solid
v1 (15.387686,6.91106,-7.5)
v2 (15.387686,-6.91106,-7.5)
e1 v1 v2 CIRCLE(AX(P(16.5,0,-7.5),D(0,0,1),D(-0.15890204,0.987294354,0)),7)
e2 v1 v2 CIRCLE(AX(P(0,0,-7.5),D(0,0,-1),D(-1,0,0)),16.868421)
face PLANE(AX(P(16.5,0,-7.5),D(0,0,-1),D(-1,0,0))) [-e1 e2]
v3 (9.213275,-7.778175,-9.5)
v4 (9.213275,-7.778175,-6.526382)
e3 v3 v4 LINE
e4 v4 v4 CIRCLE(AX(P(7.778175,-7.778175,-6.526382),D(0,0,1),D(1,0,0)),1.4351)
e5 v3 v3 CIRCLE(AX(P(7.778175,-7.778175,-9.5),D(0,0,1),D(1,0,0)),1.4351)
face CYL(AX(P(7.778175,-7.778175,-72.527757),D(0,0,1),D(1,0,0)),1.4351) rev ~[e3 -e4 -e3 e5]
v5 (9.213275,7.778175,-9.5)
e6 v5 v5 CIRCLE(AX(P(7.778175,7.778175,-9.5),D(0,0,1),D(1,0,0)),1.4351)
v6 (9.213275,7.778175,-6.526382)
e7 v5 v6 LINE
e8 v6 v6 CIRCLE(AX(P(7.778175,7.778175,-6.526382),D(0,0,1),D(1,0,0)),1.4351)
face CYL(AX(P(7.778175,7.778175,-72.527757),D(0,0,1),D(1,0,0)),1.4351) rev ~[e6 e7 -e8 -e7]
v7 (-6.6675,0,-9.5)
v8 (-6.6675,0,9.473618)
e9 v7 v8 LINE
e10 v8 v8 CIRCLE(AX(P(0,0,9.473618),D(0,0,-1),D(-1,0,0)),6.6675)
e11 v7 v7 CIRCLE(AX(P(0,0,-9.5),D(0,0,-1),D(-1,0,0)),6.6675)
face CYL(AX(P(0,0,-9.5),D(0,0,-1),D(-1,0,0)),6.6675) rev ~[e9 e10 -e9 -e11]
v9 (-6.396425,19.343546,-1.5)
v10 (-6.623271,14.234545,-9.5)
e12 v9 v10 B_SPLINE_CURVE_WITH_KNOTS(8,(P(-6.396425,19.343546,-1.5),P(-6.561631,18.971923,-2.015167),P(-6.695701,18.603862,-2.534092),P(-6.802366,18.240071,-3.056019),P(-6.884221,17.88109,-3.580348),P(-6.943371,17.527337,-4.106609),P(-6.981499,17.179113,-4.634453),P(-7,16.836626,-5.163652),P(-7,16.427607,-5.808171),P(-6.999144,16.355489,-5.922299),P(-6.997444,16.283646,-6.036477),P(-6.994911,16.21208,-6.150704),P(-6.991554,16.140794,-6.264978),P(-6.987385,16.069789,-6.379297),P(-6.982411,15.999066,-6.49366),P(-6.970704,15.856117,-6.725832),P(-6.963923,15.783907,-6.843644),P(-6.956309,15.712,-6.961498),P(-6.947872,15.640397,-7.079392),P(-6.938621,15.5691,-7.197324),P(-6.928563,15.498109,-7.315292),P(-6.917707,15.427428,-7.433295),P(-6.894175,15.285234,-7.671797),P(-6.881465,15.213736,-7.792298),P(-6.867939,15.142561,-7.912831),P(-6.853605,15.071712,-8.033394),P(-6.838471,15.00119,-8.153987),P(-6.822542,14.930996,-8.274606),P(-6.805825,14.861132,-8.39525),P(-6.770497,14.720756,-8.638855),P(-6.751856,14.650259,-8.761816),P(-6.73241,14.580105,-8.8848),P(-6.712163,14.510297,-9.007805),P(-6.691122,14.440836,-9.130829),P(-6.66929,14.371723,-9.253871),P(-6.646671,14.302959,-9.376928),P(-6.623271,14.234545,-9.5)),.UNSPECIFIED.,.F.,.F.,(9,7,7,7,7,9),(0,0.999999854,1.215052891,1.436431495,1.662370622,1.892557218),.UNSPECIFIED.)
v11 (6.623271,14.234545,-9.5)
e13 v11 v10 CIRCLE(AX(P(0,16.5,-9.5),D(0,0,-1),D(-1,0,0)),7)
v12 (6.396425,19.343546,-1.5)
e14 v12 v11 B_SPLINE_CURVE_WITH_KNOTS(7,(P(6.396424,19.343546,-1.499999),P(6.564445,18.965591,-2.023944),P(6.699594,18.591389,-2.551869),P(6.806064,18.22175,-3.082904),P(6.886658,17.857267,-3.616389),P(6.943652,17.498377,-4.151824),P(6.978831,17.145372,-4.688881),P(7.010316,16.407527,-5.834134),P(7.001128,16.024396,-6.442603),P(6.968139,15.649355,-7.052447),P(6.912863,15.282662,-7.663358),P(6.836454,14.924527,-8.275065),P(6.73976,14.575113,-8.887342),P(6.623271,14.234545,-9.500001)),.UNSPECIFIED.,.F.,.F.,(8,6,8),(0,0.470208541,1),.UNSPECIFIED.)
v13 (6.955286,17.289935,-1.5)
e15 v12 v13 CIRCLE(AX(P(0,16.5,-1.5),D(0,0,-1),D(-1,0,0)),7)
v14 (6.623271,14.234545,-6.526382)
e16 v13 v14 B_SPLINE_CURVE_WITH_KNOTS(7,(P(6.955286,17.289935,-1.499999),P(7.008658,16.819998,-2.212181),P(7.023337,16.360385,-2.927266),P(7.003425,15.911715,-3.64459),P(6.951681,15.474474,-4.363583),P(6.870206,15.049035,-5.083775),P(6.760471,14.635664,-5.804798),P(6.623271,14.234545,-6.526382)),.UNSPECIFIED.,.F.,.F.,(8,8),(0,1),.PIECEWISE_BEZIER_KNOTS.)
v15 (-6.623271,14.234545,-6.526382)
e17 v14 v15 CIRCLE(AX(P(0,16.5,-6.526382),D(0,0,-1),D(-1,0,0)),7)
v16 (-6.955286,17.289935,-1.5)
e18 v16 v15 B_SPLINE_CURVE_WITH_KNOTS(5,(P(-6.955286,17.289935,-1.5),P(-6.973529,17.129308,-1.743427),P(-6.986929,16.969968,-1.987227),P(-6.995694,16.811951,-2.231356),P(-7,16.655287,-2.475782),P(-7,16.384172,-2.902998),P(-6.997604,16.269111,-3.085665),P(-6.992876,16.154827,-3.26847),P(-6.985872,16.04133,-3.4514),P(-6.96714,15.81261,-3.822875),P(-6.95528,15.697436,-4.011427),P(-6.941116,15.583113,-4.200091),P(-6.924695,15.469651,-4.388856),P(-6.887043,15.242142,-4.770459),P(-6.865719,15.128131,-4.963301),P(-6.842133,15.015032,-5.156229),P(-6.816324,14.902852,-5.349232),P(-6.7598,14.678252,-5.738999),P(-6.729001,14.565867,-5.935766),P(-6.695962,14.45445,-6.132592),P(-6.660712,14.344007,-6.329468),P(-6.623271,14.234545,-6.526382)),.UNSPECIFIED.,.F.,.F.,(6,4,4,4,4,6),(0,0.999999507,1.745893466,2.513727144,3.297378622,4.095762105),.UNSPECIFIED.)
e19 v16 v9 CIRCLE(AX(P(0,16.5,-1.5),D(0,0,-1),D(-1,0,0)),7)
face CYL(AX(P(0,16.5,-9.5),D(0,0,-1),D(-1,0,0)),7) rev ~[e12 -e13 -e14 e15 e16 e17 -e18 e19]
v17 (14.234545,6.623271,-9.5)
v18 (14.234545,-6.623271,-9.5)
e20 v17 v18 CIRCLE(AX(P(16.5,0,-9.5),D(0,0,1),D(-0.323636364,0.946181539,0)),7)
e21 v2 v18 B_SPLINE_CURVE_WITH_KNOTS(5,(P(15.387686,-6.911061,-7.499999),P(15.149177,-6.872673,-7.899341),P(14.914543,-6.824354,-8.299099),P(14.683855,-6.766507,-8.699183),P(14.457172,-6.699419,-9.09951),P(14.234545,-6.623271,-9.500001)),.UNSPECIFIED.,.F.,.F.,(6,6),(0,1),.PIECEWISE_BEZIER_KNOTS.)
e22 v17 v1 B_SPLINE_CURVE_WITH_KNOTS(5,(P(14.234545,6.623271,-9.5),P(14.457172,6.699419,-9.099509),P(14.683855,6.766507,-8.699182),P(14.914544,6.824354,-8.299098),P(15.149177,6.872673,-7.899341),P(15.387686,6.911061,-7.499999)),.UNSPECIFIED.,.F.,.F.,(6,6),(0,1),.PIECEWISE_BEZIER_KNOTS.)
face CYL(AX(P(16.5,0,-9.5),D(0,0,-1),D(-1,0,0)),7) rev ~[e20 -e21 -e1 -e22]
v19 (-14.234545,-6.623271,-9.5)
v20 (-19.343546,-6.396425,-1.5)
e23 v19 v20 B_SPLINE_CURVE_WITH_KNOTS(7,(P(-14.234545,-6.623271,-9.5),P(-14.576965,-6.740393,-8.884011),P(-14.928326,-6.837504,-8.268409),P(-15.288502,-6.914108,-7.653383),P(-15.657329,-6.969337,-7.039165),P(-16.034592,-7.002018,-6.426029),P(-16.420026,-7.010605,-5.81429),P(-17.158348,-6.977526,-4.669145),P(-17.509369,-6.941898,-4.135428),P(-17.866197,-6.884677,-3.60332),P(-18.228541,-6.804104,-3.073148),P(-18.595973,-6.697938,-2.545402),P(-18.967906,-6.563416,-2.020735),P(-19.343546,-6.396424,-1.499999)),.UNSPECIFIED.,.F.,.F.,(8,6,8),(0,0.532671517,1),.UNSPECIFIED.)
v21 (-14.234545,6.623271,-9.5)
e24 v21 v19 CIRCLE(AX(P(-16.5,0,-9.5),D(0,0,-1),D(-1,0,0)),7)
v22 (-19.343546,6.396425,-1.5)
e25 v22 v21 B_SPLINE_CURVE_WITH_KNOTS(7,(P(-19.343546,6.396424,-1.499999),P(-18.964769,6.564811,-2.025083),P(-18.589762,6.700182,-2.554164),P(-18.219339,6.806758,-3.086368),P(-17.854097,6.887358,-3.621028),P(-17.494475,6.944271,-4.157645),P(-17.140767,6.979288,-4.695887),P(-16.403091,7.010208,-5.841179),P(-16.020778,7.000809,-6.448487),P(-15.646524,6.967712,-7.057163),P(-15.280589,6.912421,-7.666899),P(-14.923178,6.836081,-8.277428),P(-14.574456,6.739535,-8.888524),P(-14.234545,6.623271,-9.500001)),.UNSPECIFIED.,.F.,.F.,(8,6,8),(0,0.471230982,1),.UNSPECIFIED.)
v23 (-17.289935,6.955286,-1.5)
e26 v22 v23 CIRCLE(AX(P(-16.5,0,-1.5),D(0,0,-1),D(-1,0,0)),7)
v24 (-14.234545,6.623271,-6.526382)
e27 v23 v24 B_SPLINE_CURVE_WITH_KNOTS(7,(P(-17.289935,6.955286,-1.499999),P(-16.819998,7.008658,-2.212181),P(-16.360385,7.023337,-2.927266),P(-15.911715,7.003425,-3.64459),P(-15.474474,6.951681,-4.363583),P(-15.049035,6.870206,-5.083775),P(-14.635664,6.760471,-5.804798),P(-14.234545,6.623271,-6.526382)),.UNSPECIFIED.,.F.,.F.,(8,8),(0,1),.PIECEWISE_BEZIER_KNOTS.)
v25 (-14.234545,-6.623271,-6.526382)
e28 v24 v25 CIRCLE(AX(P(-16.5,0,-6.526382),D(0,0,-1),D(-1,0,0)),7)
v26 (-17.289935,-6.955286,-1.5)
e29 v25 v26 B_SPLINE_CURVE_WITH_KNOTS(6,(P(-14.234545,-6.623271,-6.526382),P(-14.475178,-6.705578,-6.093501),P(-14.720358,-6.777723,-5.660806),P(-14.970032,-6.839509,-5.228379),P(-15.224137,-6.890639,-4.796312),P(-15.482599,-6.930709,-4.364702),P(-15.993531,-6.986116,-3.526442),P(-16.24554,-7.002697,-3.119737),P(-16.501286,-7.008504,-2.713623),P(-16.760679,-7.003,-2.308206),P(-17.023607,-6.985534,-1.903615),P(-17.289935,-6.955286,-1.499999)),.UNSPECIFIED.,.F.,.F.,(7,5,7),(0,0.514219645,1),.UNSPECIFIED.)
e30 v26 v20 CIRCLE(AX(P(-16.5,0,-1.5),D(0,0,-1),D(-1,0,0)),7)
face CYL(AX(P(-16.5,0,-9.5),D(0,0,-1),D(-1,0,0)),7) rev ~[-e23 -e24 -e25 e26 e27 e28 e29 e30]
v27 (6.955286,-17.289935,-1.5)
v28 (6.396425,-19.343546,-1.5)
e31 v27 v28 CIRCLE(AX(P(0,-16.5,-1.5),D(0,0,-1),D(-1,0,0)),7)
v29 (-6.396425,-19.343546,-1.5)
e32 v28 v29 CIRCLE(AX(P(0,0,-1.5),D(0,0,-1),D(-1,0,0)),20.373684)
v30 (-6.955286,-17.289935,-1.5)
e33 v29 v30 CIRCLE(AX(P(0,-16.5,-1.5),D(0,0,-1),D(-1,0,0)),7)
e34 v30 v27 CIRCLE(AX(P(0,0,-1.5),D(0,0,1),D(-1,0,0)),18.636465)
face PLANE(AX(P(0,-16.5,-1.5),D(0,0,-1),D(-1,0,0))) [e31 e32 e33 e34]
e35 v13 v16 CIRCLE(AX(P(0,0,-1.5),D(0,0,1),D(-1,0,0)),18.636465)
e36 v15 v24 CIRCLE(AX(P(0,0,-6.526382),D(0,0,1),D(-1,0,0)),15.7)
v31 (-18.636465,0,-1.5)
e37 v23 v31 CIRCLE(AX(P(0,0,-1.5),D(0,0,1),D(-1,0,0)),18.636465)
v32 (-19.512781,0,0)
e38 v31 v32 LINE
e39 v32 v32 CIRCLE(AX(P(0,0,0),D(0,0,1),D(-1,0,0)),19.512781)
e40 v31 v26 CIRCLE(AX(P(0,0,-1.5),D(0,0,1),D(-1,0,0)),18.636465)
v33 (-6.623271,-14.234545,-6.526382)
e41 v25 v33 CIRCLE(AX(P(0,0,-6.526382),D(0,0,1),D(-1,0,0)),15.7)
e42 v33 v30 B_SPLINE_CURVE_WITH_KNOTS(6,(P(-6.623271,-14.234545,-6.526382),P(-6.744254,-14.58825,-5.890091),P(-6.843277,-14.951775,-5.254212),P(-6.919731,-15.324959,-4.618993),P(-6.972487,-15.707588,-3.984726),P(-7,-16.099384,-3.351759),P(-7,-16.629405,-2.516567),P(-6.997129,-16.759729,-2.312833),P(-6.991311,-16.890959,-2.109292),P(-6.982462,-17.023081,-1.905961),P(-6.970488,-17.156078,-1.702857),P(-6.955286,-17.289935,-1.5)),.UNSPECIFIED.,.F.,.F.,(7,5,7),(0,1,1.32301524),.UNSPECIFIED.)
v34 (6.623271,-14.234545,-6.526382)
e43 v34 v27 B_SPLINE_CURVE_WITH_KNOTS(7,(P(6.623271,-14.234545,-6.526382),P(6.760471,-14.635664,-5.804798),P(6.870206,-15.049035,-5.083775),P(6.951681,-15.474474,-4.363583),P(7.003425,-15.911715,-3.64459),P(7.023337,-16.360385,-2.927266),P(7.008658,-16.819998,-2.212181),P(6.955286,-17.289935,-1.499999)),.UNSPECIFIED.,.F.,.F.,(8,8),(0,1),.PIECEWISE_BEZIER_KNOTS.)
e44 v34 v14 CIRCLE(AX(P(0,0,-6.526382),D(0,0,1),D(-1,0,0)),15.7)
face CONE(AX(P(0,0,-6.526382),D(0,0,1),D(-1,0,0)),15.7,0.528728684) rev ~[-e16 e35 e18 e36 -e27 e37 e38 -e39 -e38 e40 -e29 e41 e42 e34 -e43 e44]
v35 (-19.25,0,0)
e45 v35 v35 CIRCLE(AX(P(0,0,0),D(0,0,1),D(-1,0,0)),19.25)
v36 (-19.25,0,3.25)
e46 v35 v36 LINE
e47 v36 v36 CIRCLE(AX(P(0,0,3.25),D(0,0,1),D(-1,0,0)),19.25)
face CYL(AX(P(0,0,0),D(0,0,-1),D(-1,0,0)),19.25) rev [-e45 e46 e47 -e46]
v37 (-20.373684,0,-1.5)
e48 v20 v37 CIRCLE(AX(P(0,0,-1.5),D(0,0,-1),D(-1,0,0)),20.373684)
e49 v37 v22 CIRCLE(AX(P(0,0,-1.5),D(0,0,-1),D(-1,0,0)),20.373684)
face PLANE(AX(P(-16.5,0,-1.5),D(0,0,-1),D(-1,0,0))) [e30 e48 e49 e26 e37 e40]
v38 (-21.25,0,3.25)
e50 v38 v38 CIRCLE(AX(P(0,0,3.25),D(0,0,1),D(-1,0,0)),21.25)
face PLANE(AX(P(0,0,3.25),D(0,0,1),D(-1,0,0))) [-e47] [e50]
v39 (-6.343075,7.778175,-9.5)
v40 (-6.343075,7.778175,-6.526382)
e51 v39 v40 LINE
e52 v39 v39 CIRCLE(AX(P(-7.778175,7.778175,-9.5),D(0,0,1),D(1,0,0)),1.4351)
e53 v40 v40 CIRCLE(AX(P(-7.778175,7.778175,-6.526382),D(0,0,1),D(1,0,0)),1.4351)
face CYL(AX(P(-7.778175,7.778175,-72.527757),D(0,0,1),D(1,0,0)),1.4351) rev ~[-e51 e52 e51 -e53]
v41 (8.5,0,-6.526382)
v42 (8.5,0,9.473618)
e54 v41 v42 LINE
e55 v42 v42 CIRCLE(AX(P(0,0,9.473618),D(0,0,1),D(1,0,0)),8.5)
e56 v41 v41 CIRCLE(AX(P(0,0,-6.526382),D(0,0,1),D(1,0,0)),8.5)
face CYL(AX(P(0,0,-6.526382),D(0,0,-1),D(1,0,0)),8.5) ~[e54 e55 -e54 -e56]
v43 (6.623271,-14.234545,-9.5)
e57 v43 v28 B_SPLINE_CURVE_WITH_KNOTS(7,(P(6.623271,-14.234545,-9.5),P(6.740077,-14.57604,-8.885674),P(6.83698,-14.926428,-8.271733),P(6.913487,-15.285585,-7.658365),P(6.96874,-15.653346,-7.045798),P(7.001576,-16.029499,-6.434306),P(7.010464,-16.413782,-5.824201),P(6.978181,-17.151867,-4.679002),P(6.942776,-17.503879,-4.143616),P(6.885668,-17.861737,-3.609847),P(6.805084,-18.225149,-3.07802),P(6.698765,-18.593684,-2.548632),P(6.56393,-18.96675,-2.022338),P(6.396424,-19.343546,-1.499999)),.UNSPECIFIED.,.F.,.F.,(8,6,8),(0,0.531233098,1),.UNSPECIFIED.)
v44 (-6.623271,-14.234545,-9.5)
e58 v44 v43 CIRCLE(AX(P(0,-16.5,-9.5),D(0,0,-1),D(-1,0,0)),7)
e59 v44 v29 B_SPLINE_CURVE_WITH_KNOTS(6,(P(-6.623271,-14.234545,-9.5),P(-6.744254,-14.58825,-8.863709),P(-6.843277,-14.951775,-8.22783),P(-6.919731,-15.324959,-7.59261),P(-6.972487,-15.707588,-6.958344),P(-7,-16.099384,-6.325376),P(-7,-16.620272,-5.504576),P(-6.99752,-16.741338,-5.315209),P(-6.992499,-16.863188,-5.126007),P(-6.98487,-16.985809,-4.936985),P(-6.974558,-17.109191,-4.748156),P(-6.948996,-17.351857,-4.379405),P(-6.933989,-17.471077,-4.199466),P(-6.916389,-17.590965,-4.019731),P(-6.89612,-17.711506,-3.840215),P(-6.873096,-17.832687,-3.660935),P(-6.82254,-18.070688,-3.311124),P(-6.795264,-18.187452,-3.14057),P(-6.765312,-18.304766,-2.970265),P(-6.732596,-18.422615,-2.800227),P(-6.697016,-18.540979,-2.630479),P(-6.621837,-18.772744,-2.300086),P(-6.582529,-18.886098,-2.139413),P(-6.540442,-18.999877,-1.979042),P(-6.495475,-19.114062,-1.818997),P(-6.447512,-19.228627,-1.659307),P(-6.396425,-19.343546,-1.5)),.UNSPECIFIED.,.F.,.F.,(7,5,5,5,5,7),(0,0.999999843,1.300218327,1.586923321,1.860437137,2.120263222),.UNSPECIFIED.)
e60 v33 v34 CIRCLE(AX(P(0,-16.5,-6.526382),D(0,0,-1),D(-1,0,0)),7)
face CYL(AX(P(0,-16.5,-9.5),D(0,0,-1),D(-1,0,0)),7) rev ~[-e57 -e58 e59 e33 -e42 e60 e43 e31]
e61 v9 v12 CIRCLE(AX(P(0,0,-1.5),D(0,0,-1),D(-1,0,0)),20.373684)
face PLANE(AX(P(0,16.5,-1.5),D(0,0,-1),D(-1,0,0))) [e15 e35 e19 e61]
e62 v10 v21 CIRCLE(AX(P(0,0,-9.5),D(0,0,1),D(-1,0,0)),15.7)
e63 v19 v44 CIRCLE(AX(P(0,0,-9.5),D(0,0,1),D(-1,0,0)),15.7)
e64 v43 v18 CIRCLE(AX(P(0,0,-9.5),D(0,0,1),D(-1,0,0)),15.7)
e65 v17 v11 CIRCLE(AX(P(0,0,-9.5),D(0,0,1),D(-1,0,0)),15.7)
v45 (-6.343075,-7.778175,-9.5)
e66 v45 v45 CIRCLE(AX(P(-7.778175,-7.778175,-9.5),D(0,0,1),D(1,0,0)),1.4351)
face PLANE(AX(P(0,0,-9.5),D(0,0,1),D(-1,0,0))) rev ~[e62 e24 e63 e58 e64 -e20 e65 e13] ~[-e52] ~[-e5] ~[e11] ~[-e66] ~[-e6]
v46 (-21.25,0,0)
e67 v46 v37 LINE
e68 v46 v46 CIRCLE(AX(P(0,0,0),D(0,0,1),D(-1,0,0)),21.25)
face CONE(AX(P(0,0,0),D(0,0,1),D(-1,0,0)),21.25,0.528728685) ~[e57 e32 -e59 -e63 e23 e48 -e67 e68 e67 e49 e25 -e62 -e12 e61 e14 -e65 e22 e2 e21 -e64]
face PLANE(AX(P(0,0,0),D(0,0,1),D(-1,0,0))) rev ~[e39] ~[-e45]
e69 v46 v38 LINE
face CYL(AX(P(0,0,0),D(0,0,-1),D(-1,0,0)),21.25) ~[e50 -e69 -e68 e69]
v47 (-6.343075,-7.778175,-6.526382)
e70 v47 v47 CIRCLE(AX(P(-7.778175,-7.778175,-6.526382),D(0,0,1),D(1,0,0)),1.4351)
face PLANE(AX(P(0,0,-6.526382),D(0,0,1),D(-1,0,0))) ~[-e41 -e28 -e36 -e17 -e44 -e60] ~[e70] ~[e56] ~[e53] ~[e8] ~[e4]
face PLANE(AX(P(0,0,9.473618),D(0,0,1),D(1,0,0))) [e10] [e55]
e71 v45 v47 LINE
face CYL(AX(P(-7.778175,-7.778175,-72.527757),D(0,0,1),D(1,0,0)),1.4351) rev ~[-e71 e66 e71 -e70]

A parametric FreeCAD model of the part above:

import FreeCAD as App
import Part
import Sketcher

doc = App.newDocument("Part")
body = doc.addObject("PartDesign::Body", "Body")

sketch1 = doc.addObject("Sketcher::SketchObject", "Sketch")
body.addObject(sketch1)
sketch1.AttachmentSupport = (doc.XY_Plane, [""])
sketch1.MapMode = "FlatFace"
sketch1.addGeometry(Part.Circle(App.Vector(0, 0, 0), App.Vector(0, 0, 1), 21), False)
sketch1.addGeometry(Part.Circle(App.Vector(0, 0, 0), App.Vector(0, 0, 1), 19), False)
sketch1.addConstraint(Sketcher.Constraint("Coincident", 0, 3, -1, 1))
sketch1.addConstraint(Sketcher.Constraint("Coincident", 1, 3, -1, 1))
sketch1.addConstraint(Sketcher.Constraint("Diameter", 0, 42.5))
sketch1.addConstraint(Sketcher.Constraint("Diameter", 1, 38.5))
pad1 = doc.addObject("PartDesign::Pad", "Pad")
body.addObject(pad1)
pad1.Profile = sketch1
pad1.Length = 3.25

sketch2 = doc.addObject("Sketcher::SketchObject", "Sketch001")
body.addObject(sketch2)
sketch2.AttachmentSupport = (doc.XZ_Plane, [""])
sketch2.MapMode = "FlatFace"
sketch2.addGeometry(Part.LineSegment(App.Vector(-15.7, -9.5, 0), App.Vector(-21.2, 0, 0)), False)
sketch2.addGeometry(Part.LineSegment(App.Vector(-21.2, 0, 0), App.Vector(-19.5, 0, 0)), False)
sketch2.addGeometry(Part.LineSegment(App.Vector(-19.5, 0, 0), App.Vector(-15.7, -6.5, 0)), False)
sketch2.addGeometry(Part.LineSegment(App.Vector(-15.7, -6.5, 0), App.Vector(0, -6.5, 0)), False)
sketch2.addGeometry(Part.LineSegment(App.Vector(0, -6.5, 0), App.Vector(0, -9.5, 0)), False)
sketch2.addGeometry(Part.LineSegment(App.Vector(0, -9.5, 0), App.Vector(-15.7, -9.5, 0)), False)
sketch2.addConstraint(Sketcher.Constraint("Coincident", 0, 2, 1, 1))
sketch2.addConstraint(Sketcher.Constraint("Coincident", 1, 2, 2, 1))
sketch2.addConstraint(Sketcher.Constraint("Coincident", 2, 2, 3, 1))
sketch2.addConstraint(Sketcher.Constraint("Coincident", 3, 2, 4, 1))
sketch2.addConstraint(Sketcher.Constraint("Coincident", 4, 2, 5, 1))
sketch2.addConstraint(Sketcher.Constraint("Coincident", 5, 2, 0, 1))
sketch2.addConstraint(Sketcher.Constraint("Horizontal", 1))
sketch2.addConstraint(Sketcher.Constraint("Horizontal", 3))
sketch2.addConstraint(Sketcher.Constraint("Vertical", 4))
sketch2.addConstraint(Sketcher.Constraint("Horizontal", 5))
sketch2.addConstraint(Sketcher.Constraint("PointOnObject", 0, 2, -1))
sketch2.addConstraint(Sketcher.Constraint("PointOnObject", 3, 2, -2))
sketch2.addConstraint(Sketcher.Constraint("Parallel", 0, 2))
sketch2.addConstraint(Sketcher.Constraint("Vertical", 2, 2, 5, 2))
sketch2.addConstraint(Sketcher.Constraint("DistanceX", 3, 1, 3, 2, 15.7))
sketch2.addConstraint(Sketcher.Constraint("DistanceY", 4, 2, -1, 1, 9.5))
sketch2.addConstraint(Sketcher.Constraint("DistanceX", 0, 2, -1, 1, 21.25))
sketch2.addConstraint(Sketcher.Constraint("DistanceX", 1, 1, 1, 2, 1.737219))
revolution = doc.addObject("PartDesign::Revolution", "Revolution")
body.addObject(revolution)
revolution.Profile = sketch2
revolution.ReferenceAxis = (sketch2, ["V_Axis"])
revolution.Angle = 360

sketch3 = doc.addObject("Sketcher::SketchObject", "Sketch002")
body.addObject(sketch3)
sketch3.AttachmentSupport = (doc.XY_Plane, [""])
sketch3.MapMode = "FlatFace"
sketch3.AttachmentOffset = App.Placement(App.Vector(0, 0, -9.5), App.Rotation())
sketch3.addGeometry(Part.Circle(App.Vector(0, 16, 0), App.Vector(0, 0, 1), 7), False)
sketch3.addGeometry(Part.Circle(App.Vector(-16, 0, 0), App.Vector(0, 0, 1), 7), False)
sketch3.addGeometry(Part.Circle(App.Vector(0, -16, 0), App.Vector(0, 0, 1), 7), False)
sketch3.addConstraint(Sketcher.Constraint("Equal", 0, 1))
sketch3.addConstraint(Sketcher.Constraint("Equal", 1, 2))
sketch3.addConstraint(Sketcher.Constraint("Symmetric", 0, 3, 2, 3, -1, 1))
sketch3.addConstraint(Sketcher.Constraint("PointOnObject", 0, 3, -2))
sketch3.addConstraint(Sketcher.Constraint("PointOnObject", 1, 3, -1))
sketch3.addConstraint(Sketcher.Constraint("Diameter", 0, 14.0))
sketch3.addConstraint(Sketcher.Constraint("DistanceY", 2, 3, 0, 3, 33.0))
sketch3.addConstraint(Sketcher.Constraint("DistanceX", 1, 3, -1, 1, 16.5))
pocket1 = doc.addObject("PartDesign::Pocket", "Pocket")
body.addObject(pocket1)
pocket1.Profile = sketch3
pocket1.Length = 8
pocket1.Reversed = True

sketch4 = doc.addObject("Sketcher::SketchObject", "Sketch003")
body.addObject(sketch4)
sketch4.AttachmentSupport = (doc.XY_Plane, [""])
sketch4.MapMode = "FlatFace"
sketch4.AttachmentOffset = App.Placement(App.Vector(0, 0, -9.5), App.Rotation())
sketch4.addGeometry(Part.Circle(App.Vector(16, 0, 0), App.Vector(0, 0, 1), 7), False)
sketch4.addConstraint(Sketcher.Constraint("PointOnObject", 0, 3, -1))
sketch4.addConstraint(Sketcher.Constraint("Diameter", 0, 14.0))
sketch4.addConstraint(Sketcher.Constraint("DistanceX", -1, 1, 0, 3, 16.5))
pocket2 = doc.addObject("PartDesign::Pocket", "Pocket001")
body.addObject(pocket2)
pocket2.Profile = sketch4
pocket2.Length = 2
pocket2.Reversed = True

sketch5 = doc.addObject("Sketcher::SketchObject", "Sketch004")
body.addObject(sketch5)
sketch5.AttachmentSupport = (doc.XY_Plane, [""])
sketch5.MapMode = "FlatFace"
sketch5.AttachmentOffset = App.Placement(App.Vector(0, 0, -6.526382), App.Rotation())
sketch5.addGeometry(Part.Circle(App.Vector(0, 0, 0), App.Vector(0, 0, 1), 8), False)
sketch5.addConstraint(Sketcher.Constraint("Coincident", 0, 3, -1, 1))
sketch5.addConstraint(Sketcher.Constraint("Diameter", 0, 17.0))
pad2 = doc.addObject("PartDesign::Pad", "Pad001")
body.addObject(pad2)
pad2.Profile = sketch5
pad2.Length = 16

sketch6 = doc.addObject("Sketcher::SketchObject", "Sketch005")
body.addObject(sketch6)
sketch6.AttachmentSupport = (doc.XY_Plane, [""])
sketch6.MapMode = "FlatFace"
sketch6.AttachmentOffset = App.Placement(App.Vector(0, 0, -9.5), App.Rotation())
sketch6.addGeometry(Part.Circle(App.Vector(0, 0, 0), App.Vector(0, 0, 1), 7), False)
sketch6.addConstraint(Sketcher.Constraint("Coincident", 0, 3, -1, 1))
sketch6.addConstraint(Sketcher.Constraint("Diameter", 0, 13.335))
pocket3 = doc.addObject("PartDesign::Pocket", "Pocket002")
body.addObject(pocket3)
pocket3.Profile = sketch6
pocket3.Type = "ThroughAll"
pocket3.Reversed = True

sketch7 = doc.addObject("Sketcher::SketchObject", "Sketch006")
body.addObject(sketch7)
sketch7.AttachmentSupport = (doc.XY_Plane, [""])
sketch7.MapMode = "FlatFace"
sketch7.AttachmentOffset = App.Placement(App.Vector(0, 0, -9.5), App.Rotation())
sketch7.addGeometry(Part.Circle(App.Vector(-7.8, 7.8, 0), App.Vector(0, 0, 1), 1.4), False)
sketch7.addGeometry(Part.Circle(App.Vector(-7.8, -7.8, 0), App.Vector(0, 0, 1), 1.4), False)
sketch7.addGeometry(Part.Circle(App.Vector(7.8, -7.8, 0), App.Vector(0, 0, 1), 1.4), False)
sketch7.addGeometry(Part.Circle(App.Vector(7.8, 7.8, 0), App.Vector(0, 0, 1), 1.4), False)
sketch7.addConstraint(Sketcher.Constraint("Equal", 0, 1))
sketch7.addConstraint(Sketcher.Constraint("Equal", 1, 2))
sketch7.addConstraint(Sketcher.Constraint("Equal", 2, 3))
sketch7.addConstraint(Sketcher.Constraint("Symmetric", 0, 3, 2, 3, -1, 1))
sketch7.addConstraint(Sketcher.Constraint("Symmetric", 1, 3, 3, 3, -1, 1))
sketch7.addConstraint(Sketcher.Constraint("Symmetric", 1, 3, 2, 3, -2))
sketch7.addConstraint(Sketcher.Constraint("Diameter", 0, 2.8702))
sketch7.addConstraint(Sketcher.Constraint("DistanceY", 1, 3, 0, 3, 15.556349))
sketch7.addConstraint(Sketcher.Constraint("DistanceX", 1, 3, 2, 3, 15.556349))
doc.recompute()
hole = doc.addObject("PartDesign::Hole", "Hole")
body.addObject(hole)
hole.Profile = sketch7
hole.ThreadType = "None"
hole.Diameter = 2.8702
hole.DepthType = "ThroughAll"
hole.Reversed = True

doc.recompute()
